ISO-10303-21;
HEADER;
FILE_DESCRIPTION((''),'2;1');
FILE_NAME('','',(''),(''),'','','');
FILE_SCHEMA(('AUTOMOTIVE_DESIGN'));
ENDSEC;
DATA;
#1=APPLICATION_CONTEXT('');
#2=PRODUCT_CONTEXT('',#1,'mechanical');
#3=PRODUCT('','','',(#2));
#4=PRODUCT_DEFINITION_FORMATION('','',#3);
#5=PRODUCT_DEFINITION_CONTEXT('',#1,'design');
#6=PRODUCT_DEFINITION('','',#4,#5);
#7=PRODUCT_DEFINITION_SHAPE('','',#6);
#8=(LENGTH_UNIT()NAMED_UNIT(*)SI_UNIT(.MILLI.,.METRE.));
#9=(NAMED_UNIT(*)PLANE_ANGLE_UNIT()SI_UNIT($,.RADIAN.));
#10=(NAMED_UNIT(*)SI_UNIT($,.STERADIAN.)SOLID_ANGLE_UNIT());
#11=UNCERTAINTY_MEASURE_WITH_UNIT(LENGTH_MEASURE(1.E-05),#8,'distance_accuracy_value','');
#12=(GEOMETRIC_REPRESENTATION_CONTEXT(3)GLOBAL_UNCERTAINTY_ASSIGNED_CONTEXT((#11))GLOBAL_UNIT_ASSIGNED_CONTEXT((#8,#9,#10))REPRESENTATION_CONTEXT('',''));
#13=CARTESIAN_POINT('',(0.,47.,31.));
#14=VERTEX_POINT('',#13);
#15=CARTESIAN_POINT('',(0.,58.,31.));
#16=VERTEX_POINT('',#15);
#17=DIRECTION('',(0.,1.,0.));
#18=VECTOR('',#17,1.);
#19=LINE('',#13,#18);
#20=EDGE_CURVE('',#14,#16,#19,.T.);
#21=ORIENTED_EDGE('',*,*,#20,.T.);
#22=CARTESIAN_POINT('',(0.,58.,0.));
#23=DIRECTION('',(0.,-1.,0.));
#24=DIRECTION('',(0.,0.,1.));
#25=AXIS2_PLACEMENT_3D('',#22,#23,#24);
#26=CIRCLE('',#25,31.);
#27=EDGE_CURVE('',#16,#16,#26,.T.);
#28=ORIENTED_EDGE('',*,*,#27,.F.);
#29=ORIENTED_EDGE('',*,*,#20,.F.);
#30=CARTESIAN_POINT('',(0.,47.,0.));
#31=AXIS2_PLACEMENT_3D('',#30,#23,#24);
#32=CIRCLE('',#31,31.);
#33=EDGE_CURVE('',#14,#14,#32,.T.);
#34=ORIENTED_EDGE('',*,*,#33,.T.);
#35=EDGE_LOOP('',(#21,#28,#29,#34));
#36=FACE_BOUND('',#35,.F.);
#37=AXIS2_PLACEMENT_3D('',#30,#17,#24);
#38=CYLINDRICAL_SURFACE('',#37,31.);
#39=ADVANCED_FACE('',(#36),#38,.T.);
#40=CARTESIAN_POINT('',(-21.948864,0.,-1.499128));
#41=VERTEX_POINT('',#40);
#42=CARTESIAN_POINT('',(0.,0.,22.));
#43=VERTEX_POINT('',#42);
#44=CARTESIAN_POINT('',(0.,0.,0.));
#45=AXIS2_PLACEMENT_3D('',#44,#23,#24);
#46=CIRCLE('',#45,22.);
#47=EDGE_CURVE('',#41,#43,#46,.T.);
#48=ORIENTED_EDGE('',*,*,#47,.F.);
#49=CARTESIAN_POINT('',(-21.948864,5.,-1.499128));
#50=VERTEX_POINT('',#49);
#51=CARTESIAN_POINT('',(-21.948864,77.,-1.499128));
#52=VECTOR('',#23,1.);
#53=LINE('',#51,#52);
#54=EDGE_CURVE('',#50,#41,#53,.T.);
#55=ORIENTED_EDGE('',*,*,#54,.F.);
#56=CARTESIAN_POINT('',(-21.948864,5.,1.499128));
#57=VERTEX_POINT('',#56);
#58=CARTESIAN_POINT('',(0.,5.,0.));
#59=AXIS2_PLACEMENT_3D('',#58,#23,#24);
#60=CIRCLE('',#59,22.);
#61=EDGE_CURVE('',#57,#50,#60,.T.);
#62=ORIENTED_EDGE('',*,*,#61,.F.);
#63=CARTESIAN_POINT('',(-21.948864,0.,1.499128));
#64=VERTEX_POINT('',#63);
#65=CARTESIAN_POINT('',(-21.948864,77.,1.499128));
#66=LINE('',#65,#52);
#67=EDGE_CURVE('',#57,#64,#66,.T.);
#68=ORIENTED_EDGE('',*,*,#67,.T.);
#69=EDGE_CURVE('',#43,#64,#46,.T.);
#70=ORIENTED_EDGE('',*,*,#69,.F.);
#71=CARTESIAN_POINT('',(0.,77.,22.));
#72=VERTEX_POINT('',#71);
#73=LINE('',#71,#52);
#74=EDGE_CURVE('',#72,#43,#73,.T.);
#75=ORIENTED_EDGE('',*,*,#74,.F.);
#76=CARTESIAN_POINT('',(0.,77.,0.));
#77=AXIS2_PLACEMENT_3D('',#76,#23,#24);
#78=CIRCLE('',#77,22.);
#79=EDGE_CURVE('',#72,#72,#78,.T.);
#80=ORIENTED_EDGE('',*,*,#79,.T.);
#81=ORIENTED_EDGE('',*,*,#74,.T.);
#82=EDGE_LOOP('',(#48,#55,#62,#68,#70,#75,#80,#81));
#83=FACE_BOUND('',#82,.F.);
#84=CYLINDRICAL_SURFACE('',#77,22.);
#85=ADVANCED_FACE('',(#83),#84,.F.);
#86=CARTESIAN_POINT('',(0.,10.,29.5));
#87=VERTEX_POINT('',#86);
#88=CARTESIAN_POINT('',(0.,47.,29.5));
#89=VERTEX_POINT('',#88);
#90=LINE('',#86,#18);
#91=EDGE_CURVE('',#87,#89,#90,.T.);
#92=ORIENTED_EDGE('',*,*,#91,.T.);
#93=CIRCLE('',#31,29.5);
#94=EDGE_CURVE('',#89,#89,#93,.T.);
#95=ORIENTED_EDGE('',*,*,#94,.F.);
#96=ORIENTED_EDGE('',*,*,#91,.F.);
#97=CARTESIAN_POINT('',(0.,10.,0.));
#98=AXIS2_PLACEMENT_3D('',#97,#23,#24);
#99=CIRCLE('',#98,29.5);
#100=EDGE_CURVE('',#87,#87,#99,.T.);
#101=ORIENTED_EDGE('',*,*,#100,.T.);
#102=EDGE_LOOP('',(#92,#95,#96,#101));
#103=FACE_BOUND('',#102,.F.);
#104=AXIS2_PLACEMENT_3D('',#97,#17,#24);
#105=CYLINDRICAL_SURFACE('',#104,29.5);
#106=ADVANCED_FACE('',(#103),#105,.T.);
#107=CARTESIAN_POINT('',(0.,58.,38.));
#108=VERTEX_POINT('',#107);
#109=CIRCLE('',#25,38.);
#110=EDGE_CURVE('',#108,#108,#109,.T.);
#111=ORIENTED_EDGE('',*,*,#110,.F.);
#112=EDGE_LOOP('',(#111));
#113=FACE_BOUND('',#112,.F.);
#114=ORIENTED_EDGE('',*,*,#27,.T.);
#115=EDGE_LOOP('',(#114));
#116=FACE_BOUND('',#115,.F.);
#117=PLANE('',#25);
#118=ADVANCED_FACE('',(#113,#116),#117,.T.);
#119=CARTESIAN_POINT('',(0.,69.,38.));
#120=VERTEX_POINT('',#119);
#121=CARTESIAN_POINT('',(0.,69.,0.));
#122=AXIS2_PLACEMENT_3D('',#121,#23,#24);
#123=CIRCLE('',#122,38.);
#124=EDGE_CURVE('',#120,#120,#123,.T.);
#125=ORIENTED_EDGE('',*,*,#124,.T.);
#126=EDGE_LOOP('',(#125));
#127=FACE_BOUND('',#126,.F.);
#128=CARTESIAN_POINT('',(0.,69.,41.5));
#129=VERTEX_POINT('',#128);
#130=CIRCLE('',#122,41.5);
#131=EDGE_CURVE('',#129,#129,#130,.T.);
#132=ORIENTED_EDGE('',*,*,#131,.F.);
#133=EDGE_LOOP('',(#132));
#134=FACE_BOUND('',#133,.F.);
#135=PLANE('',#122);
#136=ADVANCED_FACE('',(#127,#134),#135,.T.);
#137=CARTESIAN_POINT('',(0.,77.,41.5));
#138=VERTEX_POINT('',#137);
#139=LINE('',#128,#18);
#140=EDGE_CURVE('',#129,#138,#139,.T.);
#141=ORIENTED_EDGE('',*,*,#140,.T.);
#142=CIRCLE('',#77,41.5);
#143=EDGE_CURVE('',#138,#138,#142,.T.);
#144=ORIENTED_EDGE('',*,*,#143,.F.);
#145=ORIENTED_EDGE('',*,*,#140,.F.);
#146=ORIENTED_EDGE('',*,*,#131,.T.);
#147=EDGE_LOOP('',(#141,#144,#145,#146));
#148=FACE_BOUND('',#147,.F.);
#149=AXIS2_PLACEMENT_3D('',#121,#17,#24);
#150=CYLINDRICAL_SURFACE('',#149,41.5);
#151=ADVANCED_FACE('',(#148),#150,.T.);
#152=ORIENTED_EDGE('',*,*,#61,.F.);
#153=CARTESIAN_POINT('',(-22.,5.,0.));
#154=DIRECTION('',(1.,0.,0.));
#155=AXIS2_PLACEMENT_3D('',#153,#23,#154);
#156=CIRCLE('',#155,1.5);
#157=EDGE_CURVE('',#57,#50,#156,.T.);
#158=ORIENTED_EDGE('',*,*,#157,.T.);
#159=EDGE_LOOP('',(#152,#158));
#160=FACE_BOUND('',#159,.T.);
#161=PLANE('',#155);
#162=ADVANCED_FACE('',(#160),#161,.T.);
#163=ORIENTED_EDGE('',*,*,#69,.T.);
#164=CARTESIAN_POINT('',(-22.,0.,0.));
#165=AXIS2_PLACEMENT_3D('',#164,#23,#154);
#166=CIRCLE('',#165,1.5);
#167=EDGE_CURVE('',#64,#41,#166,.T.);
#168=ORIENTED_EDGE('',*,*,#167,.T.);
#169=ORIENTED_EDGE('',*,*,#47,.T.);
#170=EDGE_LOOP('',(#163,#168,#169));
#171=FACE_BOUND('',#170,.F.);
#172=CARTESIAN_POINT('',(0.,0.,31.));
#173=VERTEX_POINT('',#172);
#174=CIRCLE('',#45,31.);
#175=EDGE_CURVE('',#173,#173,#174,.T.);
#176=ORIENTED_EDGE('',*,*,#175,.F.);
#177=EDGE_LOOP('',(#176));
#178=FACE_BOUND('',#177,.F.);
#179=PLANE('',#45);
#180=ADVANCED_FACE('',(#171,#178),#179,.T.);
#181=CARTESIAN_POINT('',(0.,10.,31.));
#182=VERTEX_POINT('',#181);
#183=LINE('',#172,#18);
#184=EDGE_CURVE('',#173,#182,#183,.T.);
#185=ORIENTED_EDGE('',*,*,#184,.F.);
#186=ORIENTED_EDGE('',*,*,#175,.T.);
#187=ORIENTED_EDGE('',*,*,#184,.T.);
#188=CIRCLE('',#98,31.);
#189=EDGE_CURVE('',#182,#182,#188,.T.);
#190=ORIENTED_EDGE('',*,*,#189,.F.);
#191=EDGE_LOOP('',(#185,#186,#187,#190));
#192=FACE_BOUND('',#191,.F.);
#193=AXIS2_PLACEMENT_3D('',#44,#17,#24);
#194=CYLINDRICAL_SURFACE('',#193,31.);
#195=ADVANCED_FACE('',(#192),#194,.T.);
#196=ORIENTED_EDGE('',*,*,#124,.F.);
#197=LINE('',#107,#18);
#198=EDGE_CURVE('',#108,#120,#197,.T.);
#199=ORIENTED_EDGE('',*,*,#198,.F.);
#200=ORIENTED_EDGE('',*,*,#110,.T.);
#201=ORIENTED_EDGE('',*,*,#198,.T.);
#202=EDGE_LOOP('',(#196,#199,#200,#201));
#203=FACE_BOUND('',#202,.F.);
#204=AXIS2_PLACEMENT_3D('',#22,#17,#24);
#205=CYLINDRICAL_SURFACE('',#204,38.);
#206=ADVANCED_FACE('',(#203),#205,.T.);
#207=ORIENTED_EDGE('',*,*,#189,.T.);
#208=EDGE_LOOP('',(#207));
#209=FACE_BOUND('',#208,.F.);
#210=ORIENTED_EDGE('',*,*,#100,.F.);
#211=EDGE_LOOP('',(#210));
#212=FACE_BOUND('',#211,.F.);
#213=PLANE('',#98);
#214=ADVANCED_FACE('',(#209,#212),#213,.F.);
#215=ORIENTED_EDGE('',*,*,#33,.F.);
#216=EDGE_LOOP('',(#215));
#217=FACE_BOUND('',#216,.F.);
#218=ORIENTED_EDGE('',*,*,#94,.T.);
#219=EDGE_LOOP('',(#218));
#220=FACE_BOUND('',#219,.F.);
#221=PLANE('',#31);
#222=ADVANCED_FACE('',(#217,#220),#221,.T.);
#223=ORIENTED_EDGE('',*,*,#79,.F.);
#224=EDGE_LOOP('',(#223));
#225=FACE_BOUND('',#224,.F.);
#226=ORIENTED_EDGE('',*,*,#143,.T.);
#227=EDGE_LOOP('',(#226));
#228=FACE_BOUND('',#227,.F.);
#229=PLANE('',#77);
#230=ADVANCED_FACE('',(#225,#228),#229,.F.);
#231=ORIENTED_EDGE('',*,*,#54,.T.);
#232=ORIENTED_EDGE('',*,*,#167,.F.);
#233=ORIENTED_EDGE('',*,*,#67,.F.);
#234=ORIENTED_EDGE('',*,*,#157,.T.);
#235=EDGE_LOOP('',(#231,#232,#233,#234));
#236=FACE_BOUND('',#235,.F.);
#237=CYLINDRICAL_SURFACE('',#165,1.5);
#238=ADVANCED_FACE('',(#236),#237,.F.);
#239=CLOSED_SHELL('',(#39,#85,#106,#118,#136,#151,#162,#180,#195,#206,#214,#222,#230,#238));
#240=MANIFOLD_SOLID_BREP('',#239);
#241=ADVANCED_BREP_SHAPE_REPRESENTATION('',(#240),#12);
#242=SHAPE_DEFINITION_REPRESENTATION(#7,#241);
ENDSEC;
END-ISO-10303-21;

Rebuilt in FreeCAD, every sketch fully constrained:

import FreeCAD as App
import Part
import Sketcher
from FreeCAD import Vector
Q = App.Units.Quantity

doc = App.newDocument("Part")
body = doc.addObject("PartDesign::Body", "Body")

# Sketch on XY plane
sketch1 = body.newObject("Sketcher::SketchObject", "Sketch")
sketch1.AttachmentSupport = (doc.getObject("XY_Plane"), [""])
sketch1.MapMode = "FlatFace"
sketch1.addGeometry([
    Part.LineSegment(Vector(-31, 0, 0), Vector(-22, 0, 0)),  # 0
    Part.LineSegment(Vector(-22, 0, 0), Vector(-22, 77, 0)),  # 1
    Part.LineSegment(Vector(-22, 77, 0), Vector(-41.5, 77, 0)),  # 2
    Part.LineSegment(Vector(-41.5, 77, 0), Vector(-41.5, 69, 0)),  # 3
    Part.LineSegment(Vector(-41.5, 69, 0), Vector(-38, 69, 0)),  # 4
    Part.LineSegment(Vector(-38, 69, 0), Vector(-38, 58, 0)),  # 5
    Part.LineSegment(Vector(-38, 58, 0), Vector(-31, 58, 0)),  # 6
    Part.LineSegment(Vector(-31, 58, 0), Vector(-31, 47, 0)),  # 7
    Part.LineSegment(Vector(-31, 47, 0), Vector(-29.5, 47, 0)),  # 8
    Part.LineSegment(Vector(-29.5, 47, 0), Vector(-29.5, 10, 0)),  # 9
    Part.LineSegment(Vector(-29.5, 10, 0), Vector(-31, 10, 0)),  # 10
    Part.LineSegment(Vector(-31, 10, 0), Vector(-31, 0, 0)),  # 11
], False)
sketch1.addConstraint([
    Sketcher.Constraint("Coincident", 0, 2, 1, 1),
    Sketcher.Constraint("Coincident", 1, 2, 2, 1),
    Sketcher.Constraint("Coincident", 2, 2, 3, 1),
    Sketcher.Constraint("Coincident", 3, 2, 4, 1),
    Sketcher.Constraint("Coincident", 4, 2, 5, 1),
    Sketcher.Constraint("Coincident", 5, 2, 6, 1),
    Sketcher.Constraint("Coincident", 6, 2, 7, 1),
    Sketcher.Constraint("Coincident", 7, 2, 8, 1),
    Sketcher.Constraint("Coincident", 8, 2, 9, 1),
    Sketcher.Constraint("Coincident", 9, 2, 10, 1),
    Sketcher.Constraint("Coincident", 10, 2, 11, 1),
    Sketcher.Constraint("Coincident", 11, 2, 0, 1),
    Sketcher.Constraint("Horizontal", 0),
    Sketcher.Constraint("Vertical", 1),
    Sketcher.Constraint("Horizontal", 2),
    Sketcher.Constraint("Vertical", 3),
    Sketcher.Constraint("Horizontal", 4),
    Sketcher.Constraint("Vertical", 5),
    Sketcher.Constraint("Horizontal", 6),
    Sketcher.Constraint("Vertical", 7),
    Sketcher.Constraint("Horizontal", 8),
    Sketcher.Constraint("Vertical", 9),
    Sketcher.Constraint("Horizontal", 10),
    Sketcher.Constraint("Vertical", 11),
    Sketcher.Constraint("PointOnObject", 0, 2, -1),
    Sketcher.Constraint("Vertical", 7, 2, 10, 2),
    Sketcher.Constraint("Equal", 5, 7),
    Sketcher.Constraint("DistanceX", 0, 1, 0, 2, Q("9 mm")),
    Sketcher.Constraint("DistanceX", 6, 1, 6, 2, Q("7 mm")),
    Sketcher.Constraint("DistanceY", 1, 1, 1, 2, Q("77 mm")),
    Sketcher.Constraint("DistanceY", 3, 2, 3, 1, Q("8 mm")),
    Sketcher.Constraint("DistanceY", 5, 2, 5, 1, Q("11 mm")),
    Sketcher.Constraint("DistanceY", 9, 2, 9, 1, Q("37 mm")),
    Sketcher.Constraint("DistanceX", 2, 2, 2, 1, Q("19.5 mm")),
    Sketcher.Constraint("DistanceX", 8, 1, 8, 2, Q("1.5 mm")),
    Sketcher.Constraint("DistanceX", 0, 2, -1, 1, Q("22 mm")),
])
revolution = body.newObject("PartDesign::Revolution", "Revolution")
revolution.Profile = sketch1
revolution.ReferenceAxis = (sketch1, ["V_Axis"])
revolution.Angle = 360

# Sketch on XZ plane
sketch2 = body.newObject("Sketcher::SketchObject", "Sketch001")
sketch2.AttachmentSupport = (doc.getObject("XZ_Plane"), [""])
sketch2.MapMode = "FlatFace"
sketch2.addGeometry(Part.Circle(Vector(-22, 0, 0), Vector(0, 0, 1), 1.5), False)
sketch2.addConstraint([
    Sketcher.Constraint("PointOnObject", 0, 3, -1),
    Sketcher.Constraint("Diameter", 0, Q("3 mm")),
    Sketcher.Constraint("DistanceX", 0, 3, -1, 1, Q("22 mm")),
])
pocket1 = body.newObject("PartDesign::Pocket", "Pocket")
pocket1.Profile = sketch2
pocket1.Length = 5

doc.recompute()
